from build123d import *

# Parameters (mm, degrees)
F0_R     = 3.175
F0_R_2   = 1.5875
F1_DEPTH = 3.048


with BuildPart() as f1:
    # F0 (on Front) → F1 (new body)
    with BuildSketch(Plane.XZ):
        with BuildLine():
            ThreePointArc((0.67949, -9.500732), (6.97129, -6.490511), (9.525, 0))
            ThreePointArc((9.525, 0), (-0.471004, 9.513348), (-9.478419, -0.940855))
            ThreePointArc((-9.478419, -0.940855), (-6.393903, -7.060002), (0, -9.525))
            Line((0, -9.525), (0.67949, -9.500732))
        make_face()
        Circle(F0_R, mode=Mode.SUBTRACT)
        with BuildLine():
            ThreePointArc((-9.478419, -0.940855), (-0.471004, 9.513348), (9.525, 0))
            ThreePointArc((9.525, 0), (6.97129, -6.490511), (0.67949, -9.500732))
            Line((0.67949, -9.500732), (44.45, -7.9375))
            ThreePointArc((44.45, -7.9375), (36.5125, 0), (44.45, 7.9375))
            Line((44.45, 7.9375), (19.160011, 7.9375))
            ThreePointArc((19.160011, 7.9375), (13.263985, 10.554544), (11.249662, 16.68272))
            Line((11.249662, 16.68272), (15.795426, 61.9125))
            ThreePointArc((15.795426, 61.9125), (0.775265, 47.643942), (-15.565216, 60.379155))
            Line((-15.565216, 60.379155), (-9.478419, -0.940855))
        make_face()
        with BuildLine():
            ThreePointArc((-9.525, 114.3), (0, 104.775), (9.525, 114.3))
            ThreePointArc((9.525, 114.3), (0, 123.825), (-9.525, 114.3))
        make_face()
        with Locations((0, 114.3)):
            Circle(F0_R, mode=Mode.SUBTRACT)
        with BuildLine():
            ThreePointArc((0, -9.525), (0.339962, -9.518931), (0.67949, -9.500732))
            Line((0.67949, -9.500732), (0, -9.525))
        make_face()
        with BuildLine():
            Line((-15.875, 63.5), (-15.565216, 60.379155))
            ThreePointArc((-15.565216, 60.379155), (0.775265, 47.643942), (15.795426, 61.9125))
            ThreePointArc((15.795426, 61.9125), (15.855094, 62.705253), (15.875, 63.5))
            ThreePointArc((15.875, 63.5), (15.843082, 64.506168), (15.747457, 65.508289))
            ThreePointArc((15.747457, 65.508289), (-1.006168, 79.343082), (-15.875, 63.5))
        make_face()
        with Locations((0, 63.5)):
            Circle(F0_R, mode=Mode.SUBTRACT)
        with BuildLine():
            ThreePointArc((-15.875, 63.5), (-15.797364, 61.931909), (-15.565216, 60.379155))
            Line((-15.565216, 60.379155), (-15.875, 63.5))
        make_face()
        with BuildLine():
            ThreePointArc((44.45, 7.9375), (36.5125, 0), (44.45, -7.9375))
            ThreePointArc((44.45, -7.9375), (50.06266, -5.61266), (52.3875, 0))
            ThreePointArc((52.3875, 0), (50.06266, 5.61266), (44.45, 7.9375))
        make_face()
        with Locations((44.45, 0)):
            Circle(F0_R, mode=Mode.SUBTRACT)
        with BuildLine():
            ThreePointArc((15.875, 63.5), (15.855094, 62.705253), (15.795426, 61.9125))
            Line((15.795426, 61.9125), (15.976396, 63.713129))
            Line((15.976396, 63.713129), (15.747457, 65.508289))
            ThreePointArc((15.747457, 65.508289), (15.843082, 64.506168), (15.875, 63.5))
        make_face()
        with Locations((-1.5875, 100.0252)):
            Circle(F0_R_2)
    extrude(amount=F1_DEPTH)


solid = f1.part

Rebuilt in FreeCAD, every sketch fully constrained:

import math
import FreeCAD as App
import Part
import Sketcher
Q = App.Units.Quantity

doc = App.newDocument("Part")
params = doc.addObject("Spreadsheet::Sheet", "Params")
for row, (alias, value) in enumerate([
    ("sketch1_diameter", "0.25 in"),
    ("sketch1_diameter2", "0.75 in"),
    ("sketch1_diameter3", "0.125 in"),
    ("sketch1_radius", "0.3125 in"),
    ("sketch1_radius2", "0.313 in"),
    ("pad1_length", "0.12 in"),
], start=1):
    params.set(f"A{row}", alias)
    params.set(f"B{row}", "=" + value)
    params.setAlias(f"B{row}", alias)

body = doc.addObject("PartDesign::Body", "Body")
body.AllowCompound = True

# Sketch on XZ plane
sketch1 = body.newObject("Sketcher::SketchObject", "Sketch")
sketch1.AttachmentSupport = (doc.getObject("XZ_Plane"), [""])
sketch1.MapMode = "FlatFace"
sketch1.addGeometry([
    Part.LineSegment(App.Vector(0.7, -9.5, 0), App.Vector(44.5, -7.9, 0)),  # 0
    Part.ArcOfCircle(Part.Circle(App.Vector(44.4, 0, 0), App.Vector(0, 0, 1), 7.9), math.radians(-90), math.radians(0)),  # 1
    Part.ArcOfCircle(Part.Circle(App.Vector(44.4, 0, 0), App.Vector(0, 0, 1), 7.9), math.radians(0), math.radians(90)),  # 2
    Part.LineSegment(App.Vector(44.5, 7.9, 0), App.Vector(19.2, 7.9, 0)),  # 3
    Part.ArcOfCircle(Part.Circle(App.Vector(19.2, 15.9, 0), App.Vector(0, 0, 1), 8), math.radians(174), math.radians(270)),  # 4
    Part.LineSegment(App.Vector(11.2, 16.7, 0), App.Vector(15.8, 61.9, 0)),  # 5
    Part.LineSegment(App.Vector(15.8, 61.9, 0), App.Vector(16, 63.7, 0)),  # 6
    Part.LineSegment(App.Vector(16, 63.7, 0), App.Vector(15.7, 65.5, 0)),  # 7
    Part.ArcOfCircle(Part.Circle(App.Vector(0, 63.5, 0), App.Vector(0, 0, 1), 15.9), math.radians(7), math.radians(180)),  # 8
    Part.ArcOfCircle(Part.Circle(App.Vector(0, 63.5, 0), App.Vector(0, 0, 1), 15.9), math.radians(-180), math.radians(-168.66)),  # 9
    Part.LineSegment(App.Vector(-15.6, 60.4, 0), App.Vector(-9.5, -0.9, 0)),  # 10
    Part.ArcOfCircle(Part.Circle(App.Vector(0, 0, 0), App.Vector(0, 0, 1), 9.5), math.radians(-174), math.radians(-90)),  # 11
    Part.ArcOfCircle(Part.Circle(App.Vector(0, 0, 0), App.Vector(0, 0, 1), 9.5), math.radians(-90), math.radians(-85.91)),  # 12
    Part.Circle(App.Vector(0, 0, 0), App.Vector(0, 0, 1), 3.2),  # 13
    Part.Circle(App.Vector(44.5, 0, 0), App.Vector(0, 0, 1), 3.2),  # 14
    Part.Circle(App.Vector(0, 63.5, 0), App.Vector(0, 0, 1), 3.2),  # 15
    Part.Circle(App.Vector(0, 114.3, 0), App.Vector(0, 0, 1), 9.5),  # 16
    Part.Circle(App.Vector(0, 114.3, 0), App.Vector(0, 0, 1), 3.2),  # 17
    Part.Circle(App.Vector(-1.6, 100, 0), App.Vector(0, 0, 1), 1.6),  # 18
], False)
sketch1.addConstraint([
    Sketcher.Constraint("Coincident", 0, 2, 1, 1),
    Sketcher.Constraint("Tangent", 1, 2, 2, 1),
    Sketcher.Constraint("Tangent", 2, 2, 3, 1),
    Sketcher.Constraint("Tangent", 3, 2, 4, 2),
    Sketcher.Constraint("Tangent", 4, 1, 5, 1),
    Sketcher.Constraint("Coincident", 5, 2, 6, 1),
    Sketcher.Constraint("Coincident", 6, 2, 7, 1),
    Sketcher.Constraint("Tangent", 7, 2, 8, 1),
    Sketcher.Constraint("Tangent", 8, 2, 9, 1),
    Sketcher.Constraint("Coincident", 9, 2, 10, 1),
    Sketcher.Constraint("Tangent", 10, 2, 11, 1),
    Sketcher.Constraint("Tangent", 11, 2, 12, 1),
    Sketcher.Constraint("Coincident", 12, 2, 0, 1),
    Sketcher.Constraint("Horizontal", 3),
    Sketcher.Constraint("Coincident", 11, 3, -1, 1),
    Sketcher.Constraint("Coincident", 13, 3, -1, 1),
    Sketcher.Constraint("Coincident", 14, 3, 1, 3),
    Sketcher.Constraint("Coincident", 15, 3, 8, 3),
    Sketcher.Constraint("Coincident", 17, 3, 16, 3),
    Sketcher.Constraint("Equal", 1, 2),
    Sketcher.Constraint("Equal", 13, 14),
    Sketcher.Constraint("Equal", 14, 15),
    Sketcher.Constraint("Equal", 11, 16),
    Sketcher.Constraint("Equal", 15, 17),
    Sketcher.Constraint("Symmetric", 0, 2, 2, 2, -1),
    Sketcher.Constraint("PointOnObject", 8, 3, -2),
    Sketcher.Constraint("PointOnObject", 16, 3, -2),
    Sketcher.Constraint("PointOnObject", 1, 2, -1),
    Sketcher.Constraint("PointOnObject", 11, 2, -2),
    Sketcher.Constraint("Parallel", 5, 6),
    Sketcher.Constraint("Horizontal", 15, 3, 8, 2),
    Sketcher.Constraint("Equal", 6, 7),
    Sketcher.Constraint("Diameter", 13, Q("0.25 in")),
    Sketcher.Constraint("Diameter", 16, Q("0.75 in")),
    Sketcher.Constraint("Diameter", 18, Q("0.125 in")),
    Sketcher.Constraint("Radius", 1, Q("0.3125 in")),
    Sketcher.Constraint("Radius", 4, Q("0.313 in")),
    Sketcher.Constraint("Radius", 8, Q("0.625 in")),
    Sketcher.Constraint("DistanceY", 9, 3, 16, 3, Q("1.9999999 in")),
    Sketcher.Constraint("DistanceY", -1, 1, 8, 3, Q("2.5 in")),
    Sketcher.Constraint("DistanceX", -1, 1, 1, 3, Q("1.75 in")),
    Sketcher.Constraint("DistanceX", 18, 3, -1, 1, Q("0.0625 in")),
    Sketcher.Constraint("DistanceY", -1, 1, 18, 3, Q("3.938 in")),
    Sketcher.Constraint("DistanceY", -1, 1, 5, 2, Q("2.4375 in")),
    Sketcher.Constraint("Radius", 12, 9.524881),
    Sketcher.Constraint("DistanceX", -1, 1, 4, 1, Q("0.4429001 in")),
    Sketcher.Constraint("Radius", 9, 15.875033),
    Sketcher.Constraint("Distance", 6, 1.8097),
    Sketcher.Constraint("DistanceX", -1, 1, 12, 2, 0.67949),
    Sketcher.Constraint("DistanceX", 9, 2, 9, 3, 15.565249),
])
sketch1.setExpression("Constraints[32]", "Params.sketch1_diameter")
sketch1.setExpression("Constraints[33]", "Params.sketch1_diameter2")
sketch1.setExpression("Constraints[34]", "Params.sketch1_diameter3")
sketch1.setExpression("Constraints[35]", "Params.sketch1_radius")
sketch1.setExpression("Constraints[36]", "Params.sketch1_radius2")
pad1 = body.newObject("PartDesign::Pad", "Pad")
pad1.Profile = sketch1
pad1.setExpression("Length", "Params.pad1_length")

doc.recompute()
